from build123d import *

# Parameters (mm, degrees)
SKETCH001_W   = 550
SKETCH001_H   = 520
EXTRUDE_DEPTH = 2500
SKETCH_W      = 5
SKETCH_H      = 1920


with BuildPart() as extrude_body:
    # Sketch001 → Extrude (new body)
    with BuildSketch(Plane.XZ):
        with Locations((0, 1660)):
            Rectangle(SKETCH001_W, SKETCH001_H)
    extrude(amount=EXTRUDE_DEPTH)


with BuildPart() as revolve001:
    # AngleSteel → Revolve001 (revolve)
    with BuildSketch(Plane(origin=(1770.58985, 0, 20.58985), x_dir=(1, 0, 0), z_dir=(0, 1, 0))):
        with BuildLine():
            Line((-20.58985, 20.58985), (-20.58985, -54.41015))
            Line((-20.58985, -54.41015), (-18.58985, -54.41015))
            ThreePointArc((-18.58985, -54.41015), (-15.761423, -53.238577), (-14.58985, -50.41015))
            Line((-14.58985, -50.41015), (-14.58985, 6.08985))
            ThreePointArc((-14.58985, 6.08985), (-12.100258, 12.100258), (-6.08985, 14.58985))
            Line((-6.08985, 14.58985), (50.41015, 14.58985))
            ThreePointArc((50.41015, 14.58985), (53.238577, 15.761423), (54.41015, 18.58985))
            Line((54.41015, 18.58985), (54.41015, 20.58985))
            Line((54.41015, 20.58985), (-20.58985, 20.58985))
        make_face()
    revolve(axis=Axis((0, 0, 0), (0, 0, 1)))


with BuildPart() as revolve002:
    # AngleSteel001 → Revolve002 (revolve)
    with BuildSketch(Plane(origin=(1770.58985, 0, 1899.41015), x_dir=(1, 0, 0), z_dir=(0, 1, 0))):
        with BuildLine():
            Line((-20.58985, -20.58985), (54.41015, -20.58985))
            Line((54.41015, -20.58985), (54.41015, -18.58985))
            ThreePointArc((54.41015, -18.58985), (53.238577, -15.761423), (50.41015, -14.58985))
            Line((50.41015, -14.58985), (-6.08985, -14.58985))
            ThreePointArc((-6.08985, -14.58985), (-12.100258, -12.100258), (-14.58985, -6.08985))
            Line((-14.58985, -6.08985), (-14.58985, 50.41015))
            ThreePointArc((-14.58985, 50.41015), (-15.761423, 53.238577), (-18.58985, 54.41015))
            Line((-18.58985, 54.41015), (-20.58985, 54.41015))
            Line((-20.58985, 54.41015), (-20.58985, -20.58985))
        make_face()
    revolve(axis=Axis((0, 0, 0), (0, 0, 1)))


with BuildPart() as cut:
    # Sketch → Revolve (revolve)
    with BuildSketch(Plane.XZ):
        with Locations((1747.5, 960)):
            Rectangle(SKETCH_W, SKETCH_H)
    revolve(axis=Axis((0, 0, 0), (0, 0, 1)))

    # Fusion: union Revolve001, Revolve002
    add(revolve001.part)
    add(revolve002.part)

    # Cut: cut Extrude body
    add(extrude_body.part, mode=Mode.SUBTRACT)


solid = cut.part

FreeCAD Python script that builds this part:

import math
import FreeCAD as App
import Part
import Sketcher
from FreeCAD import Vector

doc = App.newDocument("Part")
body = doc.addObject("PartDesign::Body", "Body")

sketch1 = doc.addObject("Sketcher::SketchObject", "Sketch")
body.addObject(sketch1)
sketch1.AttachmentSupport = (doc.XZ_Plane, [""])
sketch1.MapMode = "FlatFace"
sketch1.addGeometry(Part.LineSegment(Vector(-275, 1920, 0), Vector(-275, 1400, 0)), False)
sketch1.addGeometry(Part.LineSegment(Vector(-275, 1400, 0), Vector(275, 1400, 0)), False)
sketch1.addGeometry(Part.LineSegment(Vector(275, 1400, 0), Vector(275, 1920, 0)), False)
sketch1.addGeometry(Part.LineSegment(Vector(275, 1920, 0), Vector(-275, 1920, 0)), False)
sketch1.addConstraint(Sketcher.Constraint("Coincident", 0, 2, 1, 1))
sketch1.addConstraint(Sketcher.Constraint("Coincident", 1, 2, 2, 1))
sketch1.addConstraint(Sketcher.Constraint("Coincident", 2, 2, 3, 1))
sketch1.addConstraint(Sketcher.Constraint("Coincident", 3, 2, 0, 1))
sketch1.addConstraint(Sketcher.Constraint("Vertical", 0))
sketch1.addConstraint(Sketcher.Constraint("Horizontal", 1))
sketch1.addConstraint(Sketcher.Constraint("Vertical", 2))
sketch1.addConstraint(Sketcher.Constraint("Horizontal", 3))
sketch1.addConstraint(Sketcher.Constraint("DistanceX", 1, 1, 1, 2, 550.0))
sketch1.addConstraint(Sketcher.Constraint("DistanceY", 0, 2, 0, 1, 520.0))
sketch1.addConstraint(Sketcher.Constraint("DistanceX", 0, 2, -1, 1, 275.0))
sketch1.addConstraint(Sketcher.Constraint("DistanceY", -1, 1, 0, 2, 1400.0))
pad1 = doc.addObject("PartDesign::Pad", "Pad")
body.addObject(pad1)
pad1.Profile = sketch1
pad1.Length = 2500
body2 = doc.addObject("PartDesign::Body", "Body001")

sketch2 = doc.addObject("Sketcher::SketchObject", "Sketch001")
body2.addObject(sketch2)
sketch2.AttachmentSupport = (doc.getObject("XZ_Plane001"), [""])
sketch2.MapMode = "FlatFace"
sketch2.addGeometry(Part.LineSegment(Vector(1750, 0, 0), Vector(1750, 75, 0)), False)
sketch2.addGeometry(Part.LineSegment(Vector(1750, 75, 0), Vector(1752, 75, 0)), False)
sketch2.addGeometry(Part.ArcOfCircle(Part.Circle(Vector(1752, 71, 0), Vector(0, 0, 1), 4), math.radians(0), math.radians(90)), False)
sketch2.addGeometry(Part.LineSegment(Vector(1756, 71, 0), Vector(1756, 14.5, 0)), False)
sketch2.addGeometry(Part.ArcOfCircle(Part.Circle(Vector(1764.5, 14.5, 0), Vector(0, 0, 1), 8.5), math.radians(180), math.radians(270)), False)
sketch2.addGeometry(Part.LineSegment(Vector(1764.5, 6, 0), Vector(1821, 6, 0)), False)
sketch2.addGeometry(Part.ArcOfCircle(Part.Circle(Vector(1821, 2, 0), Vector(0, 0, 1), 4), math.radians(0), math.radians(90)), False)
sketch2.addGeometry(Part.LineSegment(Vector(1825, 2, 0), Vector(1825, 0, 0)), False)
sketch2.addGeometry(Part.LineSegment(Vector(1825, 0, 0), Vector(1750, 0, 0)), False)
sketch2.addConstraint(Sketcher.Constraint("Coincident", 0, 2, 1, 1))
sketch2.addConstraint(Sketcher.Constraint("Tangent", 1, 2, 2, 2))
sketch2.addConstraint(Sketcher.Constraint("Tangent", 2, 1, 3, 1))
sketch2.addConstraint(Sketcher.Constraint("Tangent", 3, 2, 4, 1))
sketch2.addConstraint(Sketcher.Constraint("Tangent", 4, 2, 5, 1))
sketch2.addConstraint(Sketcher.Constraint("Tangent", 5, 2, 6, 2))
sketch2.addConstraint(Sketcher.Constraint("Tangent", 6, 1, 7, 1))
sketch2.addConstraint(Sketcher.Constraint("Coincident", 7, 2, 8, 1))
sketch2.addConstraint(Sketcher.Constraint("Coincident", 8, 2, 0, 1))
sketch2.addConstraint(Sketcher.Constraint("Vertical", 0))
sketch2.addConstraint(Sketcher.Constraint("Horizontal", 1))
sketch2.addConstraint(Sketcher.Constraint("Vertical", 3))
sketch2.addConstraint(Sketcher.Constraint("Horizontal", 5))
sketch2.addConstraint(Sketcher.Constraint("Vertical", 7))
sketch2.addConstraint(Sketcher.Constraint("Horizontal", 8))
sketch2.addConstraint(Sketcher.Constraint("Equal", 2, 6))
sketch2.addConstraint(Sketcher.Constraint("PointOnObject", 7, 2, -1))
sketch2.addConstraint(Sketcher.Constraint("Equal", 8, 0))
sketch2.addConstraint(Sketcher.Constraint("Equal", 5, 3))
sketch2.addConstraint(Sketcher.Constraint("Radius", 2, 4.0))
sketch2.addConstraint(Sketcher.Constraint("Radius", 4, 8.499999))
sketch2.addConstraint(Sketcher.Constraint("DistanceX", 1, 1, 1, 2, 2.0))
sketch2.addConstraint(Sketcher.Constraint("DistanceX", 8, 2, 8, 1, 75.0))
sketch2.addConstraint(Sketcher.Constraint("DistanceX", -1, 1, 2, 3, 1752.0))
revolution = doc.addObject("PartDesign::Revolution", "Revolution")
body2.addObject(revolution)
revolution.Profile = sketch2
revolution.ReferenceAxis = (sketch2, ["V_Axis"])
revolution.Angle = 360
body3 = doc.addObject("PartDesign::Body", "Body002")

sketch3 = doc.addObject("Sketcher::SketchObject", "Sketch002")
body3.addObject(sketch3)
sketch3.AttachmentSupport = (doc.getObject("XZ_Plane002"), [""])
sketch3.MapMode = "FlatFace"
sketch3.addGeometry(Part.LineSegment(Vector(1750, 1920, 0), Vector(1825, 1920, 0)), False)
sketch3.addGeometry(Part.LineSegment(Vector(1825, 1920, 0), Vector(1825, 1918, 0)), False)
sketch3.addGeometry(Part.ArcOfCircle(Part.Circle(Vector(1821, 1918, 0), Vector(0, 0, 1), 4), math.radians(-90), math.radians(0)), False)
sketch3.addGeometry(Part.LineSegment(Vector(1821, 1914, 0), Vector(1764.5, 1914, 0)), False)
sketch3.addGeometry(Part.ArcOfCircle(Part.Circle(Vector(1764.5, 1905.5, 0), Vector(0, 0, 1), 8.5), math.radians(90), math.radians(180)), False)
sketch3.addGeometry(Part.LineSegment(Vector(1756, 1905.5, 0), Vector(1756, 1849, 0)), False)
sketch3.addGeometry(Part.ArcOfCircle(Part.Circle(Vector(1752, 1849, 0), Vector(0, 0, 1), 4), math.radians(-90), math.radians(0)), False)
sketch3.addGeometry(Part.LineSegment(Vector(1752, 1845, 0), Vector(1750, 1845, 0)), False)
sketch3.addGeometry(Part.LineSegment(Vector(1750, 1845, 0), Vector(1750, 1920, 0)), False)
sketch3.addConstraint(Sketcher.Constraint("Coincident", 0, 2, 1, 1))
sketch3.addConstraint(Sketcher.Constraint("Tangent", 1, 2, 2, 2))
sketch3.addConstraint(Sketcher.Constraint("Tangent", 2, 1, 3, 1))
sketch3.addConstraint(Sketcher.Constraint("Tangent", 3, 2, 4, 1))
sketch3.addConstraint(Sketcher.Constraint("Tangent", 4, 2, 5, 1))
sketch3.addConstraint(Sketcher.Constraint("Tangent", 5, 2, 6, 2))
sketch3.addConstraint(Sketcher.Constraint("Tangent", 6, 1, 7, 1))
sketch3.addConstraint(Sketcher.Constraint("Coincident", 7, 2, 8, 1))
sketch3.addConstraint(Sketcher.Constraint("Coincident", 8, 2, 0, 1))
sketch3.addConstraint(Sketcher.Constraint("Horizontal", 0))
sketch3.addConstraint(Sketcher.Constraint("Vertical", 1))
sketch3.addConstraint(Sketcher.Constraint("Horizontal", 3))
sketch3.addConstraint(Sketcher.Constraint("Vertical", 5))
sketch3.addConstraint(Sketcher.Constraint("Horizontal", 7))
sketch3.addConstraint(Sketcher.Constraint("Vertical", 8))
sketch3.addConstraint(Sketcher.Constraint("Equal", 2, 6))
sketch3.addConstraint(Sketcher.Constraint("Equal", 7, 1))
sketch3.addConstraint(Sketcher.Constraint("Equal", 3, 5))
sketch3.addConstraint(Sketcher.Constraint("Radius", 2, 4.0))
sketch3.addConstraint(Sketcher.Constraint("Radius", 4, 8.499999))
sketch3.addConstraint(Sketcher.Constraint("DistanceX", 0, 1, 0, 2, 75.0))
sketch3.addConstraint(Sketcher.Constraint("DistanceX", 7, 2, 7, 1, 2.0))
sketch3.addConstraint(Sketcher.Constraint("DistanceX", -1, 1, 2, 3, 1821.0))
sketch3.addConstraint(Sketcher.Constraint("DistanceY", -1, 1, 2, 3, 1918.0))
revolution2 = doc.addObject("PartDesign::Revolution", "Revolution001")
body3.addObject(revolution2)
revolution2.Profile = sketch3
revolution2.ReferenceAxis = (sketch3, ["V_Axis"])
revolution2.Angle = 360
body4 = doc.addObject("PartDesign::Body", "Body003")

sketch4 = doc.addObject("Sketcher::SketchObject", "Sketch003")
body4.addObject(sketch4)
sketch4.AttachmentSupport = (doc.getObject("XZ_Plane003"), [""])
sketch4.MapMode = "FlatFace"
sketch4.addGeometry(Part.LineSegment(Vector(1745, 1920, 0), Vector(1745, 0, 0)), False)
sketch4.addGeometry(Part.LineSegment(Vector(1745, 0, 0), Vector(1750, 0, 0)), False)
sketch4.addGeometry(Part.LineSegment(Vector(1750, 0, 0), Vector(1750, 1920, 0)), False)
sketch4.addGeometry(Part.LineSegment(Vector(1750, 1920, 0), Vector(1745, 1920, 0)), False)
sketch4.addConstraint(Sketcher.Constraint("Coincident", 0, 2, 1, 1))
sketch4.addConstraint(Sketcher.Constraint("Coincident", 1, 2, 2, 1))
sketch4.addConstraint(Sketcher.Constraint("Coincident", 2, 2, 3, 1))
sketch4.addConstraint(Sketcher.Constraint("Coincident", 3, 2, 0, 1))
sketch4.addConstraint(Sketcher.Constraint("Vertical", 0))
sketch4.addConstraint(Sketcher.Constraint("Horizontal", 1))
sketch4.addConstraint(Sketcher.Constraint("Vertical", 2))
sketch4.addConstraint(Sketcher.Constraint("Horizontal", 3))
sketch4.addConstraint(Sketcher.Constraint("PointOnObject", 0, 2, -1))
sketch4.addConstraint(Sketcher.Constraint("DistanceX", 1, 1, 1, 2, 5.0))
sketch4.addConstraint(Sketcher.Constraint("DistanceY", 0, 2, 0, 1, 1920.0))
sketch4.addConstraint(Sketcher.Constraint("DistanceX", -1, 1, 0, 2, 1745.0))
revolution3 = doc.addObject("PartDesign::Revolution", "Revolution002")
body4.addObject(revolution3)
revolution3.Profile = sketch4
revolution3.ReferenceAxis = (sketch4, ["V_Axis"])
revolution3.Angle = 360
doc.recompute()

boolean = doc.addObject("PartDesign::Boolean", "Boolean")
body4.addObject(boolean)
boolean.Type = "Fuse"
boolean.addObjects([body2])
doc.recompute()

boolean2 = doc.addObject("PartDesign::Boolean", "Boolean001")
body4.addObject(boolean2)
boolean2.Type = "Fuse"
boolean2.addObjects([body3])
doc.recompute()

boolean3 = doc.addObject("PartDesign::Boolean", "Boolean002")
body4.addObject(boolean3)
boolean3.Type = "Cut"
boolean3.addObjects([body])

doc.recompute()
